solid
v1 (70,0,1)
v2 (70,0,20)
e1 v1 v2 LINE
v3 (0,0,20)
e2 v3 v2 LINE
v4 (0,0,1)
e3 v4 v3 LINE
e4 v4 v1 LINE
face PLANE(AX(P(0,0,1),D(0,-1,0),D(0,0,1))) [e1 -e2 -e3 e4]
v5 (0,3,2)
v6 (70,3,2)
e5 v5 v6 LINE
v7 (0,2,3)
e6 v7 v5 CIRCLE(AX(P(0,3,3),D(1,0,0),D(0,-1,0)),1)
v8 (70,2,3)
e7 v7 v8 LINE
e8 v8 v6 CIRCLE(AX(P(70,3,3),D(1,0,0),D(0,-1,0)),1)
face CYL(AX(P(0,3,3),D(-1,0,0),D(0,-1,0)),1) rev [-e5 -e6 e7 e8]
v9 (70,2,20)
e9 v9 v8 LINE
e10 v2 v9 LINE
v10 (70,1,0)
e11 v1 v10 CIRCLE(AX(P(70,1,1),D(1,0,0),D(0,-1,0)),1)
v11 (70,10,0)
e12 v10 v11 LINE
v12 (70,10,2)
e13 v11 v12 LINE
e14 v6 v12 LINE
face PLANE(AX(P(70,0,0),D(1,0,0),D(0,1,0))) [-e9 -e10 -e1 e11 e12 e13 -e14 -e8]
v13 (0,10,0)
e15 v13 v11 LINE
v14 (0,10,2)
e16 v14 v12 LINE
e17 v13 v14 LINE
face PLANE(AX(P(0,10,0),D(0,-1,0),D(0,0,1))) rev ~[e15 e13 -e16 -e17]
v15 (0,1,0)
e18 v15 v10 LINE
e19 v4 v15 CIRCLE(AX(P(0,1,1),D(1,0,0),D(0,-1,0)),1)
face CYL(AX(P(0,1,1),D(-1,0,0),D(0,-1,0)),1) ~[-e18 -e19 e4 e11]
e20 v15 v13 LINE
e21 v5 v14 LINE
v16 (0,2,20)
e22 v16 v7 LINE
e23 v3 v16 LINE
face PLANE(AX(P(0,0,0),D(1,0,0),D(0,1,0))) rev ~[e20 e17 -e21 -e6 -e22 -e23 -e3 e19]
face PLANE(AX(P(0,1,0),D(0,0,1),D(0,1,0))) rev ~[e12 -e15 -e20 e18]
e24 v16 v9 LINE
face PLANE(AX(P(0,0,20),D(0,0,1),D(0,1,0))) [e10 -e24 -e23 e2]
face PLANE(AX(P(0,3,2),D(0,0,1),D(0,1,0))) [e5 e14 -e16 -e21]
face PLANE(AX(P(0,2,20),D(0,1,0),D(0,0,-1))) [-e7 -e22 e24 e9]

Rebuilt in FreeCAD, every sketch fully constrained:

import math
import FreeCAD as App
import Part
import Sketcher

doc = App.newDocument("Part")
body = doc.addObject("PartDesign::Body", "Body")

sketch1 = body.newObject("Sketcher::SketchObject", "Sketch")
sketch1.AttachmentSupport = (doc.getObject("YZ_Plane"), [""])
sketch1.MapMode = "FlatFace"
sketch1.addGeometry([
    Part.ArcOfCircle(Part.Circle(App.Vector(1, 1, 0), App.Vector(0, 0, 1), 1), math.radians(180), math.radians(270)),
    Part.LineSegment(App.Vector(1, 0, 0), App.Vector(10, 0, 0)),
    Part.LineSegment(App.Vector(10, 0, 0), App.Vector(10, 2, 0)),
    Part.LineSegment(App.Vector(10, 2, 0), App.Vector(3, 2, 0)),
    Part.ArcOfCircle(Part.Circle(App.Vector(3, 3, 0), App.Vector(0, 0, 1), 1), math.radians(180), math.radians(270)),
    Part.LineSegment(App.Vector(2, 3, 0), App.Vector(2, 20, 0)),
    Part.LineSegment(App.Vector(2, 20, 0), App.Vector(0, 20, 0)),
    Part.LineSegment(App.Vector(0, 20, 0), App.Vector(0, 1, 0)),
], False)
sketch1.addConstraint([
    Sketcher.Constraint("Tangent", 0, 2, 1, 1),
    Sketcher.Constraint("Coincident", 1, 2, 2, 1),
    Sketcher.Constraint("Coincident", 2, 2, 3, 1),
    Sketcher.Constraint("Tangent", 3, 2, 4, 2),
    Sketcher.Constraint("Tangent", 4, 1, 5, 1),
    Sketcher.Constraint("Coincident", 5, 2, 6, 1),
    Sketcher.Constraint("Coincident", 6, 2, 7, 1),
    Sketcher.Constraint("Tangent", 7, 2, 0, 1),
    Sketcher.Constraint("Horizontal", 1),
    Sketcher.Constraint("Vertical", 2),
    Sketcher.Constraint("Horizontal", 3),
    Sketcher.Constraint("Vertical", 5),
    Sketcher.Constraint("Horizontal", 6),
    Sketcher.Constraint("Vertical", 7),
    Sketcher.Constraint("Equal", 0, 4),
    Sketcher.Constraint("PointOnObject", 0, 2, -1),
    Sketcher.Constraint("PointOnObject", 6, 2, -2),
    Sketcher.Constraint("Equal", 6, 2),
    Sketcher.Constraint("Radius", 0, 1.0),
    Sketcher.Constraint("DistanceX", 6, 2, 6, 1, 2.0),
    Sketcher.Constraint("DistanceX", -1, 1, 1, 2, 10.0),
    Sketcher.Constraint("DistanceY", -1, 1, 5, 2, 20.0),
])
pad1 = body.newObject("PartDesign::Pad", "Pad")
pad1.Profile = sketch1
pad1.Length = 70

doc.recompute()
